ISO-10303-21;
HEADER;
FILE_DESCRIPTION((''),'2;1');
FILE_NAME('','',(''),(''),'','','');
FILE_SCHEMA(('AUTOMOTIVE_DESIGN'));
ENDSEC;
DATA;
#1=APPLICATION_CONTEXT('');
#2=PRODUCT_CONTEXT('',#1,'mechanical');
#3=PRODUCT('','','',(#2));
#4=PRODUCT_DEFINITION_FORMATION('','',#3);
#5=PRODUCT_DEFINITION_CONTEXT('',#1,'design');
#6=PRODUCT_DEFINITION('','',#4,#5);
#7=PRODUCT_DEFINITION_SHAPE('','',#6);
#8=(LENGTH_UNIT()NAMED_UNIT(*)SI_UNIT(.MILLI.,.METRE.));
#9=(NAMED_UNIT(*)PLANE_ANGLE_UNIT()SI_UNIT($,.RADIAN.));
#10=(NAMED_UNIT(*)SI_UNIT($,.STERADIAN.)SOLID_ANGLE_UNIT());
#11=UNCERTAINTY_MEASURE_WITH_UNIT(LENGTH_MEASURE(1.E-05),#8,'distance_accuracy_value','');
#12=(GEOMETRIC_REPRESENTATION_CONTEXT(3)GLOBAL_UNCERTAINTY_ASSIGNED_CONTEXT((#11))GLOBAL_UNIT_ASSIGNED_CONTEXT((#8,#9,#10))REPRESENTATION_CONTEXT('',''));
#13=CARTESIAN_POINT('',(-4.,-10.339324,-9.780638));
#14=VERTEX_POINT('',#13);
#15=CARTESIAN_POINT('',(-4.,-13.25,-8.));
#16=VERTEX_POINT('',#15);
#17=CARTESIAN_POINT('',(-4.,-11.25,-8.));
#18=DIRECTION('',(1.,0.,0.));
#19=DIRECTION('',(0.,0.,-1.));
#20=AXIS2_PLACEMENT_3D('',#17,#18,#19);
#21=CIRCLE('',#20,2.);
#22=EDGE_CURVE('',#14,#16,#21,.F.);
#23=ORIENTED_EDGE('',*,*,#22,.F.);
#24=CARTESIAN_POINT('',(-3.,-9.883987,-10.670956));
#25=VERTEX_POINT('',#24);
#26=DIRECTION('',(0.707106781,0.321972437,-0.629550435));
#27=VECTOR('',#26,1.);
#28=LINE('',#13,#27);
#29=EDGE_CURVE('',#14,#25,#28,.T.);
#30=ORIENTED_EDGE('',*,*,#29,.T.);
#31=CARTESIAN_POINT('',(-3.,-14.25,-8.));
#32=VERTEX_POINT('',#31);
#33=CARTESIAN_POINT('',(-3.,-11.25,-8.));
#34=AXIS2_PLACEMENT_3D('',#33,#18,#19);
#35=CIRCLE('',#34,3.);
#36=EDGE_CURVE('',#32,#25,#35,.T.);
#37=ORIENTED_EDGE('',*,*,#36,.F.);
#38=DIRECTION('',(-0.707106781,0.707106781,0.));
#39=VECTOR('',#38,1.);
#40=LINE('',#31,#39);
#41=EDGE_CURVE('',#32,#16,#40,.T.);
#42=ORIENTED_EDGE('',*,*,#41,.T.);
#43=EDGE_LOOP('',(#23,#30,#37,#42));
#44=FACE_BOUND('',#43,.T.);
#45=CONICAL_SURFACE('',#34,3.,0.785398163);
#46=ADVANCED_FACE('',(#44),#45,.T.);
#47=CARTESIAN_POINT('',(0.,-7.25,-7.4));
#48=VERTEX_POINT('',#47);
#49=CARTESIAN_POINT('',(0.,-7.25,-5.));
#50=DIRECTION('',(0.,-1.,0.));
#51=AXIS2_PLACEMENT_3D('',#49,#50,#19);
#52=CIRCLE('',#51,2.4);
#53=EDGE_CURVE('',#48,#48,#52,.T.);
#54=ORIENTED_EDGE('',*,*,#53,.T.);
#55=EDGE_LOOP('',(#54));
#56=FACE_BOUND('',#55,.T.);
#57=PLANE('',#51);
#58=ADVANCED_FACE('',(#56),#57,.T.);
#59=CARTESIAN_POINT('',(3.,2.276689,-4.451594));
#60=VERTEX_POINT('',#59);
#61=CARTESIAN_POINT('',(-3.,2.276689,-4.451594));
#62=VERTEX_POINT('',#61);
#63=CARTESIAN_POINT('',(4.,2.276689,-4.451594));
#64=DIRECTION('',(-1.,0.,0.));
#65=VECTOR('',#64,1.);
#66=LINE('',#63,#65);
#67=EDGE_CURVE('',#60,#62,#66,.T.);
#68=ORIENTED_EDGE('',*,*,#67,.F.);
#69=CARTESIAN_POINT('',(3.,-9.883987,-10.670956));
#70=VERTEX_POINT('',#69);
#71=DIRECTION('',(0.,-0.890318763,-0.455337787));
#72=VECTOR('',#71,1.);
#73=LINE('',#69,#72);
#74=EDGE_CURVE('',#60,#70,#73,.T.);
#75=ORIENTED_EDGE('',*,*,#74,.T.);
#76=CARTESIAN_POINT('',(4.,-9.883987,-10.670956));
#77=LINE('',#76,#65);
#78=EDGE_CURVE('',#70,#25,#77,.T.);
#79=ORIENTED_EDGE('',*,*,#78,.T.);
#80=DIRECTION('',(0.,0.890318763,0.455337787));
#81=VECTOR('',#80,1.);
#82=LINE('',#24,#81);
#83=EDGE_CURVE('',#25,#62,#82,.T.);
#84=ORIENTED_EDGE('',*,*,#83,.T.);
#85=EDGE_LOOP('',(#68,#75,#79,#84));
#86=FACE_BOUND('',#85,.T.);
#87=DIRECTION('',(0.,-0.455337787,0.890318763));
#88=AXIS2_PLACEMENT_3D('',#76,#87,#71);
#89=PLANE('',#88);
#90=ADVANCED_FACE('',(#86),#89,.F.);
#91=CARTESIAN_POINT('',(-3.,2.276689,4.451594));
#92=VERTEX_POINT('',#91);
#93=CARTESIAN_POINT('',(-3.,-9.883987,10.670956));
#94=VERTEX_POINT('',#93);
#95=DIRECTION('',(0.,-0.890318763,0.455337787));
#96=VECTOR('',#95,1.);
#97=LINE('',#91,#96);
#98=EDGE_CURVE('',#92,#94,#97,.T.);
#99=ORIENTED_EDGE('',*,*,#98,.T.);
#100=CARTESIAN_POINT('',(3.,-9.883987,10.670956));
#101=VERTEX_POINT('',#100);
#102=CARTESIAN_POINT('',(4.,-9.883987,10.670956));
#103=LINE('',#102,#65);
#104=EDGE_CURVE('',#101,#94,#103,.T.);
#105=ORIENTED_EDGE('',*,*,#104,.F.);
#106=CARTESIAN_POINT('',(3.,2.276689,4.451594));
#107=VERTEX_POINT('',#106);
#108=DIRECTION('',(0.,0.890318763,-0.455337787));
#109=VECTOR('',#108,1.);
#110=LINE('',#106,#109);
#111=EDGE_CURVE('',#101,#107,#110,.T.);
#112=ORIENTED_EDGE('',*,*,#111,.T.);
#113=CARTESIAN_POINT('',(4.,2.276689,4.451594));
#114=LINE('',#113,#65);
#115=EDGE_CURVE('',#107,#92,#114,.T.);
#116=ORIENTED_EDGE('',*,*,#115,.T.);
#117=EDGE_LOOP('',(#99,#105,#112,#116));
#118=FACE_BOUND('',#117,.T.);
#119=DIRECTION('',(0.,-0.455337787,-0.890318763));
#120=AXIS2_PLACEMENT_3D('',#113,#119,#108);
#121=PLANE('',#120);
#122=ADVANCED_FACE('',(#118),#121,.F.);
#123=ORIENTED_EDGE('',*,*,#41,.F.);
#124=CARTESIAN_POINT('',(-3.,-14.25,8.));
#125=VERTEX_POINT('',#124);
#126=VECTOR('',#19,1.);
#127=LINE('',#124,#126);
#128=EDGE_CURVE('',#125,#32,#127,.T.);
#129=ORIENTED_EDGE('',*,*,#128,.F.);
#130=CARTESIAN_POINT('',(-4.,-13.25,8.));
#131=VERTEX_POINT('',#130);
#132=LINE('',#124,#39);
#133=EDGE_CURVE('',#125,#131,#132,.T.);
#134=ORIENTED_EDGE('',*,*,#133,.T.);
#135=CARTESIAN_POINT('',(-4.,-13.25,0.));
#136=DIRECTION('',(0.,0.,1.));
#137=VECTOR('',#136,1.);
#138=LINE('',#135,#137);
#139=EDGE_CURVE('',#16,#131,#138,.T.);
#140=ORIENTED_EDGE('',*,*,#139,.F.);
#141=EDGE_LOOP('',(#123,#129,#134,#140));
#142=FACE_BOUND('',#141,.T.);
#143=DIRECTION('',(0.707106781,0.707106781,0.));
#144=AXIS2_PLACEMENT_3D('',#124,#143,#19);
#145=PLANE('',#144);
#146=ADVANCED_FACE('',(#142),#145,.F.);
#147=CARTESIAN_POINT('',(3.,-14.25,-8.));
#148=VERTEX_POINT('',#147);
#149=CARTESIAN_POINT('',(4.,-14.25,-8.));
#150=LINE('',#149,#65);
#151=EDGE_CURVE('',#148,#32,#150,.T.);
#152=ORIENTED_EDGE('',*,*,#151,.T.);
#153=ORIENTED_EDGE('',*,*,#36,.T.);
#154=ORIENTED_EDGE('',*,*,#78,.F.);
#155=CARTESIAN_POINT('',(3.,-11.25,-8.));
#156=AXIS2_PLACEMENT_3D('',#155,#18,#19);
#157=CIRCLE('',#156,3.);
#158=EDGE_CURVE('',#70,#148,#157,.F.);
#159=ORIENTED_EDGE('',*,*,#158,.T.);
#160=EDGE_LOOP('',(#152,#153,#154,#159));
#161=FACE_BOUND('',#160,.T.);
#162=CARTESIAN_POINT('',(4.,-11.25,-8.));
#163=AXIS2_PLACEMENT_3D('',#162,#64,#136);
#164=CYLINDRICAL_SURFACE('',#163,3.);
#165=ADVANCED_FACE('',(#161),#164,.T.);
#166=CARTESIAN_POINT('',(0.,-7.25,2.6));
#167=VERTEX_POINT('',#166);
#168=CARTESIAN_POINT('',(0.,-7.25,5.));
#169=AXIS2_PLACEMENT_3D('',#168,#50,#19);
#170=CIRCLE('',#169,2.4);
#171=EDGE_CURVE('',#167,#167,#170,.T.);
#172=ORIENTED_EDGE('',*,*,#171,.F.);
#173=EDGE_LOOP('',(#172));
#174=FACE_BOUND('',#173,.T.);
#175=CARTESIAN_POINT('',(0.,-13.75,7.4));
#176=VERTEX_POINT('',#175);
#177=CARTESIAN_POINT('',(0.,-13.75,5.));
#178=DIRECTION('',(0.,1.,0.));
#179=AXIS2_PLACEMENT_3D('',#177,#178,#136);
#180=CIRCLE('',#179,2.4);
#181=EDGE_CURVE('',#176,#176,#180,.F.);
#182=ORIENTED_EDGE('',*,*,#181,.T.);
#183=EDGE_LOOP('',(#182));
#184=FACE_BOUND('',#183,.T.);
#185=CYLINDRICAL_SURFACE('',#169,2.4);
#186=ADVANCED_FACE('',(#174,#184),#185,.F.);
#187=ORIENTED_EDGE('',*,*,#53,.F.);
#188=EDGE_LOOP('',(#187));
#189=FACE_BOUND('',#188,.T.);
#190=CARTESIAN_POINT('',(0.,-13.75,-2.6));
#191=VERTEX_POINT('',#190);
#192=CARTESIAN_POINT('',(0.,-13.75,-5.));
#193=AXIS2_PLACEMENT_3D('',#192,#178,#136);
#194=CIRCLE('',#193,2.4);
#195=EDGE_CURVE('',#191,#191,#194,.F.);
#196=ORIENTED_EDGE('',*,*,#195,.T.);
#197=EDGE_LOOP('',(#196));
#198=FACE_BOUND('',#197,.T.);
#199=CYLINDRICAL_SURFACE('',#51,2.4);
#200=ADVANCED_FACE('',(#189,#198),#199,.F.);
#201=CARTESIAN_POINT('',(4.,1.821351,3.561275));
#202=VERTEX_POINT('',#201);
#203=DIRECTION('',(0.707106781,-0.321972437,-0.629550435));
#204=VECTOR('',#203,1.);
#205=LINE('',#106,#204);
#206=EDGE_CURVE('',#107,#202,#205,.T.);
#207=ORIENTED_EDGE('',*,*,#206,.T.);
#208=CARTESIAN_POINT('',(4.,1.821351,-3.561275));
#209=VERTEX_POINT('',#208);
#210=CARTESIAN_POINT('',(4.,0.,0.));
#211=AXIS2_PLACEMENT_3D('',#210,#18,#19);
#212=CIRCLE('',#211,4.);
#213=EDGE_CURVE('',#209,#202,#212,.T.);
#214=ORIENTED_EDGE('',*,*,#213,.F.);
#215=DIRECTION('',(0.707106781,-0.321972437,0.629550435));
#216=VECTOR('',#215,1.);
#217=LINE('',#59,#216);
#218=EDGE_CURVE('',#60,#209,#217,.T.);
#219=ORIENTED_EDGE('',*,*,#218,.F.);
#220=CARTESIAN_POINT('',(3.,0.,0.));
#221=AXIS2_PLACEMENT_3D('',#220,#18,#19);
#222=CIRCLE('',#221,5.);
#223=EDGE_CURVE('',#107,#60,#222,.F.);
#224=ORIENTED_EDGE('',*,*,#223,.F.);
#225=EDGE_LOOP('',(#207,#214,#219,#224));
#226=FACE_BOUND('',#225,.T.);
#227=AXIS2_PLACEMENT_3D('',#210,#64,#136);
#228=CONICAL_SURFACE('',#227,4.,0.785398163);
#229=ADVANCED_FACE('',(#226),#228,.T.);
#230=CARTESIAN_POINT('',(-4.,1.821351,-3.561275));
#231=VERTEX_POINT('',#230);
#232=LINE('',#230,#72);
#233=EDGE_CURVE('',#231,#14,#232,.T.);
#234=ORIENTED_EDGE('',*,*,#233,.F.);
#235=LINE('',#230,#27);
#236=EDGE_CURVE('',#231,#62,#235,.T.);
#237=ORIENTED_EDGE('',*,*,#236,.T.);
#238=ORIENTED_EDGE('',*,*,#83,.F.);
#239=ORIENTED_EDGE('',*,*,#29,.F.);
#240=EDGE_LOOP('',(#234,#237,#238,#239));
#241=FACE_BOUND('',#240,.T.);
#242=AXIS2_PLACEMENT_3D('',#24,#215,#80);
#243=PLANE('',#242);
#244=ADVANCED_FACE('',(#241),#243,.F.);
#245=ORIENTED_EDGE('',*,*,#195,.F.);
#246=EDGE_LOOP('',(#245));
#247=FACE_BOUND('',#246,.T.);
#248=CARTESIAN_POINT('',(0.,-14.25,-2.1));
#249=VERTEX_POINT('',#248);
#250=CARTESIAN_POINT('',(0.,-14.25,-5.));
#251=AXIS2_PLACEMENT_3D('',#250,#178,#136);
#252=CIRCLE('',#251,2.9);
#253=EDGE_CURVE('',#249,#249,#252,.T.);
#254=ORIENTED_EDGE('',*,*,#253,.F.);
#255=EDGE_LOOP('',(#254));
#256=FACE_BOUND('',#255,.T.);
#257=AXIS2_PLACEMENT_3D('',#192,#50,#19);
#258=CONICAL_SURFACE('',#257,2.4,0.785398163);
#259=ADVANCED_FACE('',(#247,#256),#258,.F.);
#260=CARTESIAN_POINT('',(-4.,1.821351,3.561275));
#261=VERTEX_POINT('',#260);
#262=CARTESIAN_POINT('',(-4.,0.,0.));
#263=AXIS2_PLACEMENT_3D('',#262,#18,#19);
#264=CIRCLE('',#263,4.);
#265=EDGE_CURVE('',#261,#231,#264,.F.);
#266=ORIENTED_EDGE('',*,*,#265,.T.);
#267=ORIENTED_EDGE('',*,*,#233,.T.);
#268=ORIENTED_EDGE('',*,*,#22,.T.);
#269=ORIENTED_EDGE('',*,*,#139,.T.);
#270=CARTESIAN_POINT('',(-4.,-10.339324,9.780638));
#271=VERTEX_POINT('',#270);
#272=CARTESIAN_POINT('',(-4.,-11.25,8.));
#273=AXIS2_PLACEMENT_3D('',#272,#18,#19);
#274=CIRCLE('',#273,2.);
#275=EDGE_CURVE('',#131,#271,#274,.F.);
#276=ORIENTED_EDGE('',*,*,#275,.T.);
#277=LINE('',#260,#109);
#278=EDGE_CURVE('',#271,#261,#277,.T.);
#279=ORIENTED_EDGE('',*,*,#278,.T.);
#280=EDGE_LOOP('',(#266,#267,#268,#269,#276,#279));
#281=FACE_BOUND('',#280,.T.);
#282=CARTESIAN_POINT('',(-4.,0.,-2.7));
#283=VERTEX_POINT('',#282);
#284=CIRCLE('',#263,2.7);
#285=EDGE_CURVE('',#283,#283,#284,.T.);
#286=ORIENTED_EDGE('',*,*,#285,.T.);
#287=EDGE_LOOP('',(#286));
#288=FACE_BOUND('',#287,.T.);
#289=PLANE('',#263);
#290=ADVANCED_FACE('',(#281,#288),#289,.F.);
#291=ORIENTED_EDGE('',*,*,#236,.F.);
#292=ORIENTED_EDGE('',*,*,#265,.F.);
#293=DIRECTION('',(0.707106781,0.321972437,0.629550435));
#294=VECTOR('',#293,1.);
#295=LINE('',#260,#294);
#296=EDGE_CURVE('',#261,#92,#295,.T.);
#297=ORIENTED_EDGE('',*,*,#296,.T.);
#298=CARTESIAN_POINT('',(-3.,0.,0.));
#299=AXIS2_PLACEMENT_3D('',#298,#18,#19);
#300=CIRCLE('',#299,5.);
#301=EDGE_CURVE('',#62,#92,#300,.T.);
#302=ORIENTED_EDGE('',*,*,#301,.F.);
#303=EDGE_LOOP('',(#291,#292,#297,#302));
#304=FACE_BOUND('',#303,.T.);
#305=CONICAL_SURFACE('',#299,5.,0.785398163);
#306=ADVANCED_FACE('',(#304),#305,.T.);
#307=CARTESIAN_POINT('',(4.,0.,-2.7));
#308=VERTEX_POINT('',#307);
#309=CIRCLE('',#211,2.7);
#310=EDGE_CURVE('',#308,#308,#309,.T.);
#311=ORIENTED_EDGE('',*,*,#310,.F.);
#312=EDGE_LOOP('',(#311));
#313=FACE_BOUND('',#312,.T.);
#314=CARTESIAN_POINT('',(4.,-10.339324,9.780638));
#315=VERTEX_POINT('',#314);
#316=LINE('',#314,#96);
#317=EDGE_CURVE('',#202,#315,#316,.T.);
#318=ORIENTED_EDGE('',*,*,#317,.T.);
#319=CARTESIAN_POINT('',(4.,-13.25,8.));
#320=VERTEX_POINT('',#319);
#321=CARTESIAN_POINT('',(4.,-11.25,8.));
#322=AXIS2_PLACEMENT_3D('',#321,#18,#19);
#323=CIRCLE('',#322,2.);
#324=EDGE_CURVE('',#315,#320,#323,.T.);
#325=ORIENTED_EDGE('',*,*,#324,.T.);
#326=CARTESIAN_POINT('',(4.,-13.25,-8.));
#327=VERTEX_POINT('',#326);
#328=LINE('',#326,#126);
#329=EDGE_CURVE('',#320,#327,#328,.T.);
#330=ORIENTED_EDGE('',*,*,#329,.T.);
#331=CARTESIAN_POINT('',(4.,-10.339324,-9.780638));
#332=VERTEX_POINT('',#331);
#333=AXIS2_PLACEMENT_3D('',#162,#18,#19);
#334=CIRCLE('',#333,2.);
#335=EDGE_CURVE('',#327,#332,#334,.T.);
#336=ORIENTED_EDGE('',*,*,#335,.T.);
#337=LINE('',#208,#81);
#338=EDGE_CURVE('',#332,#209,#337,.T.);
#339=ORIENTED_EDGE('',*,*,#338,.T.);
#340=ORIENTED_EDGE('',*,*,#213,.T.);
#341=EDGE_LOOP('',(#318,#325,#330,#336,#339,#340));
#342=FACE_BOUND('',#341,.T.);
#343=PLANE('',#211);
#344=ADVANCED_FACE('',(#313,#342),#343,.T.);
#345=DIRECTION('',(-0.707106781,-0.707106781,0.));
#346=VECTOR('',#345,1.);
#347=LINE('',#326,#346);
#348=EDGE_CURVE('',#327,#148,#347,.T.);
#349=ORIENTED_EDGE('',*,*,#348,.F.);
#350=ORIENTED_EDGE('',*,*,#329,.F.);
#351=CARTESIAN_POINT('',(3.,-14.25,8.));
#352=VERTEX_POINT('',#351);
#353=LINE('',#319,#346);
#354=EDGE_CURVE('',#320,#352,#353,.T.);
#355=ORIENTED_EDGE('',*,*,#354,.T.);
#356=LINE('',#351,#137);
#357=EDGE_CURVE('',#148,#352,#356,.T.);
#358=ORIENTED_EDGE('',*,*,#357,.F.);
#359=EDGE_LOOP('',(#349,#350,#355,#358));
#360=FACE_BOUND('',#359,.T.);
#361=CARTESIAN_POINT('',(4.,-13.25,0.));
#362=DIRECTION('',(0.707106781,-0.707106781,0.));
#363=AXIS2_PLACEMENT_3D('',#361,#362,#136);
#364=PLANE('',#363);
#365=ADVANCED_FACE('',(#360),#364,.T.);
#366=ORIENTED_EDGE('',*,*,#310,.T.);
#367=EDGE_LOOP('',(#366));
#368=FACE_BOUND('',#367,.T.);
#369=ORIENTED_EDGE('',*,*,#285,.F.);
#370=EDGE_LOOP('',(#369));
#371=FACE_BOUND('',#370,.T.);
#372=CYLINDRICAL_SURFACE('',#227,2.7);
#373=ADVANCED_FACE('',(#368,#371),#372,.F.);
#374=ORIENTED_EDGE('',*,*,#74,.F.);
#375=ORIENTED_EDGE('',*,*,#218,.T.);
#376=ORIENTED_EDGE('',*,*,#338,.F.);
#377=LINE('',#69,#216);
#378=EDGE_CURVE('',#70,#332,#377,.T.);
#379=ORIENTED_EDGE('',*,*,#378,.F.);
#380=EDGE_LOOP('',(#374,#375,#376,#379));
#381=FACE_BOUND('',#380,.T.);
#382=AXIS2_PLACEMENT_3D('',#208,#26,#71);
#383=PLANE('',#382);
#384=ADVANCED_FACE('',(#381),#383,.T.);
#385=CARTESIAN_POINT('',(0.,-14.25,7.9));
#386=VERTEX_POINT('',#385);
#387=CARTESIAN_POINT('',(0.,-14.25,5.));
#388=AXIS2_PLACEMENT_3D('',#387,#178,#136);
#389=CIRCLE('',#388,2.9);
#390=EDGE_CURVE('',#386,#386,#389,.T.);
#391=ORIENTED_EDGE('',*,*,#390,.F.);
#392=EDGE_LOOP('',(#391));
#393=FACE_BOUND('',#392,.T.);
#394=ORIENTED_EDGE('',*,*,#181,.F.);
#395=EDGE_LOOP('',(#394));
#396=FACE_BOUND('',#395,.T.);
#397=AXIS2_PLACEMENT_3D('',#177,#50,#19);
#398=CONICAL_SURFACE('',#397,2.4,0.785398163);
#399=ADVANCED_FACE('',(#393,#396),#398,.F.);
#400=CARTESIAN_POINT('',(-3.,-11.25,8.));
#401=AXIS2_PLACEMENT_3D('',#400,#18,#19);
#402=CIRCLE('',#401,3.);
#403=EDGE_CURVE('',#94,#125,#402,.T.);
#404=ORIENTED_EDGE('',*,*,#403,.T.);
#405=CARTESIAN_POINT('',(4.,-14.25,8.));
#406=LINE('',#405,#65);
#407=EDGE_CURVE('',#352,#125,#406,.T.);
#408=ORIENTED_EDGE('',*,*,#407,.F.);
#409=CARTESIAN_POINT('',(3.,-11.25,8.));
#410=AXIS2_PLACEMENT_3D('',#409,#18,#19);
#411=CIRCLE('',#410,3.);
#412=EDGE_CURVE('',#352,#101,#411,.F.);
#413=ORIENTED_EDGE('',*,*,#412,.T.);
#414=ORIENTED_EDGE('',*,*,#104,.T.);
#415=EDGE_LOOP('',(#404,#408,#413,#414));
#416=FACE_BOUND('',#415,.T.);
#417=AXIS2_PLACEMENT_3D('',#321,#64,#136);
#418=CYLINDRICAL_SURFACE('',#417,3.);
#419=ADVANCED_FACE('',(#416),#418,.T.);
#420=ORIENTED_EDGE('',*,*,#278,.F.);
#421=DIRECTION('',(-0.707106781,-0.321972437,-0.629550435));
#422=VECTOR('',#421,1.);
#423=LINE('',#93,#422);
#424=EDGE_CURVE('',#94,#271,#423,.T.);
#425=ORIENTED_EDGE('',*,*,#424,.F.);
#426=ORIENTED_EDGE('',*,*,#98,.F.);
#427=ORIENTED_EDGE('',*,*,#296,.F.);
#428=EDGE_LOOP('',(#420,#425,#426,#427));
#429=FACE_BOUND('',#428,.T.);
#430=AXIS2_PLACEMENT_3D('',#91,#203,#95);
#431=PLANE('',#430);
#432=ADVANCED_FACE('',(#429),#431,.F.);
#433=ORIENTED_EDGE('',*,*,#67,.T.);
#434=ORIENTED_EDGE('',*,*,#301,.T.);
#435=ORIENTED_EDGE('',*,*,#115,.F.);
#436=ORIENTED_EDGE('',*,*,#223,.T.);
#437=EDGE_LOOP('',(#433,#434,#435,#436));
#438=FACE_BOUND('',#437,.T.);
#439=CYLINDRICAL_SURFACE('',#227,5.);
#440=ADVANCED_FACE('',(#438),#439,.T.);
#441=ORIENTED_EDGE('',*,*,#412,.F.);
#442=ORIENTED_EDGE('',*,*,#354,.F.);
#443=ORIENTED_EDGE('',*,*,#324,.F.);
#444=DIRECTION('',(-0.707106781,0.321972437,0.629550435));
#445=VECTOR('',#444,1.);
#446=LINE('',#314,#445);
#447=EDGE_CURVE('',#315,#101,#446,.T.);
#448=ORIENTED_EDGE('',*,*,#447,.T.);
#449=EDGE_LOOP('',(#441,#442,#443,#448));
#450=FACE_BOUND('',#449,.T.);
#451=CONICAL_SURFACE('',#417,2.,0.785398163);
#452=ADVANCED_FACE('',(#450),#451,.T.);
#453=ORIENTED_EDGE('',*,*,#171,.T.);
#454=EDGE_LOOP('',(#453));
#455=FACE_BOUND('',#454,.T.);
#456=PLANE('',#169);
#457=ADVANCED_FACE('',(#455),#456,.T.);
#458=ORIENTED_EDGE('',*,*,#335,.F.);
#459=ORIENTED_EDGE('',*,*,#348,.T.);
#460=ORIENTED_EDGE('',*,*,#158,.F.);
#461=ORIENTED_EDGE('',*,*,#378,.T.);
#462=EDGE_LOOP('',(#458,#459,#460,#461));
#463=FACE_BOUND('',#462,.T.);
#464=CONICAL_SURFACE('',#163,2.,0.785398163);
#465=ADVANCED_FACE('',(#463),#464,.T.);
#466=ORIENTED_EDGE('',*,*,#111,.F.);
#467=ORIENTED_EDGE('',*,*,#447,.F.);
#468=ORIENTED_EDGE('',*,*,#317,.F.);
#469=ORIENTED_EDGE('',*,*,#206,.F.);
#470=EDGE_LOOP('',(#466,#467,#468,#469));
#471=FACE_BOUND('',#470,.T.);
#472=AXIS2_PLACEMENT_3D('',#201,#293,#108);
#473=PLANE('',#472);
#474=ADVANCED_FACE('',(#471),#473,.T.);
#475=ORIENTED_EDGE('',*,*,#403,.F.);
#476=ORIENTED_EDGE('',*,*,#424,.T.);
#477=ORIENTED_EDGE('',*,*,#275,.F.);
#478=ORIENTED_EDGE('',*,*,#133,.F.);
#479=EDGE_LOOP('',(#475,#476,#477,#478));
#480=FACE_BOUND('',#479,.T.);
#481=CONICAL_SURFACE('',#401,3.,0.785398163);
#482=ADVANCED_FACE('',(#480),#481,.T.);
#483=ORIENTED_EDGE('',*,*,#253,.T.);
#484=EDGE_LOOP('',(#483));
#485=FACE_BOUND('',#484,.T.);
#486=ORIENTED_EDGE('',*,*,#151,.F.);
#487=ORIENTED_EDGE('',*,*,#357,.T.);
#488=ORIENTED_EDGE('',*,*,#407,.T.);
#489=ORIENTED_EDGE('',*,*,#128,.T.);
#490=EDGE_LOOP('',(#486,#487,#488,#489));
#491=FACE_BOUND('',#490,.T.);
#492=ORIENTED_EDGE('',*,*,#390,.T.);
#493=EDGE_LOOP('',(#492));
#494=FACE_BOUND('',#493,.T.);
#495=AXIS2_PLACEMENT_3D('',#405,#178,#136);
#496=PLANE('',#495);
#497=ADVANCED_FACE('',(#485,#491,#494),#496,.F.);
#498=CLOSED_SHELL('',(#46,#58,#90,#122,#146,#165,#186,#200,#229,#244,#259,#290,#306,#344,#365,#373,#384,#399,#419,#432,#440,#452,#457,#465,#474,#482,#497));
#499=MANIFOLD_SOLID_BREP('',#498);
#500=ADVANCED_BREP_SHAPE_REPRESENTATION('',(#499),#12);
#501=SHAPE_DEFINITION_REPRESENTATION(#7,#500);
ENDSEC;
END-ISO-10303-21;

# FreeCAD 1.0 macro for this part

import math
import FreeCAD as App
import Part
import Sketcher
from FreeCAD import Vector
Q = App.Units.Quantity


def edges_at(feature, points):
    """Names of the edges that pass closest to the given points."""
    edges = feature.Shape.Edges
    near = lambda p: min(range(len(edges)), key=lambda i: edges[i].distToShape(Part.Vertex(*p))[0])
    return sorted({f"Edge{near(p) + 1}" for p in points})

doc = App.newDocument("Part")
body = doc.addObject("PartDesign::Body", "Body")

# Sketch on YZ plane
sketch1 = body.newObject("Sketcher::SketchObject", "Sketch")
sketch1.AttachmentSupport = (doc.getObject("YZ_Plane"), [""])
sketch1.MapMode = "FlatFace"
sketch1.addGeometry([
    Part.LineSegment(Vector(2.3, 4.5, 0), Vector(-9.9, 10.7, 0)),  # 0
    Part.ArcOfCircle(Part.Circle(Vector(-11.2, 8, 0), Vector(0, 0, 1), 3), math.radians(63), math.radians(180)),  # 1
    Part.LineSegment(Vector(-14.2, 8, 0), Vector(-14.2, -8, 0)),  # 2
    Part.ArcOfCircle(Part.Circle(Vector(-11.2, -8, 0), Vector(0, 0, 1), 3), math.radians(180), math.radians(297)),  # 3
    Part.LineSegment(Vector(-9.9, -10.7, 0), Vector(2.3, -4.5, 0)),  # 4
    Part.ArcOfCircle(Part.Circle(Vector(0, 0, 0), Vector(0, 0, 1), 5), math.radians(-63), math.radians(63)),  # 5
    Part.Circle(Vector(0, 0, 0), Vector(0, 0, 1), 2.7),  # 6
], False)
sketch1.addConstraint([
    Sketcher.Constraint("Tangent", 0, 2, 1, 1),
    Sketcher.Constraint("Tangent", 1, 2, 2, 1),
    Sketcher.Constraint("Tangent", 2, 2, 3, 1),
    Sketcher.Constraint("Tangent", 3, 2, 4, 1),
    Sketcher.Constraint("Tangent", 4, 2, 5, 1),
    Sketcher.Constraint("Tangent", 5, 2, 0, 1),
    Sketcher.Constraint("Vertical", 2),
    Sketcher.Constraint("Coincident", 5, 3, -1, 1),
    Sketcher.Constraint("Coincident", 6, 3, -1, 1),
    Sketcher.Constraint("Equal", 1, 3),
    Sketcher.Constraint("Vertical", 0, 2, 3, 2),
    Sketcher.Constraint("Radius", 1, Q("3 mm")),
    Sketcher.Constraint("Radius", 5, Q("5 mm")),
    Sketcher.Constraint("Diameter", 6, Q("5.4 mm")),
    Sketcher.Constraint("DistanceY", 2, 2, 2, 1, Q("16 mm")),
    Sketcher.Constraint("DistanceX", 1, 3, -1, 1, Q("11.25 mm")),
])
pad1 = body.newObject("PartDesign::Pad", "Pad")
pad1.Profile = sketch1
pad1.Length = 8
pad1.Midplane = True
doc.recompute()

chamfer = body.newObject("PartDesign::Chamfer", "Chamfer")
chamfer.Base = (pad1, edges_at(pad1, [
    (4, -12.816, 10.559),
    (4, -14.25, 0),
    (4, -12.816, -10.559),
    (4, -3.804, -7.561),
    (4, 5, 0),
    (-4, -3.804, -7.561),
    (-4, -12.816, -10.559),
    (-4, -14.25, 0),
    (-4, -12.816, 10.559),
    (-4, -3.804, 7.561),
    (-4, 5, 0),
    (4, -3.804, 7.561),
]))
chamfer.Size = 1

# Sketch on XZ plane
sketch2 = body.newObject("Sketcher::SketchObject", "Sketch001")
sketch2.AttachmentSupport = (doc.getObject("XZ_Plane"), [""])
sketch2.MapMode = "FlatFace"
sketch2.AttachmentOffset = App.Placement(Vector(0, 0, 14.25), App.Rotation())
sketch2.addGeometry([
    Part.Circle(Vector(0, 5, 0), Vector(0, 0, 1), 2.4),
    Part.Circle(Vector(0, -5, 0), Vector(0, 0, 1), 2.4),
], False)
sketch2.addConstraint([
    Sketcher.Constraint("Equal", 0, 1),
    Sketcher.Constraint("Symmetric", 0, 3, 1, 3, -1, 1),
    Sketcher.Constraint("PointOnObject", 0, 3, -2),
    Sketcher.Constraint("Diameter", 0, Q("4.8 mm")),
    Sketcher.Constraint("DistanceY", -1, 1, 0, 3, Q("5 mm")),
])
pocket1 = body.newObject("PartDesign::Pocket", "Pocket")
pocket1.Profile = sketch2
pocket1.Length = 7
doc.recompute()

chamfer2 = body.newObject("PartDesign::Chamfer", "Chamfer001")
chamfer2.Base = (pocket1, edges_at(pocket1, [(0, -14.25, 7.4), (0, -14.25, -2.6)]))
chamfer2.Size = 0.5

doc.recompute()
